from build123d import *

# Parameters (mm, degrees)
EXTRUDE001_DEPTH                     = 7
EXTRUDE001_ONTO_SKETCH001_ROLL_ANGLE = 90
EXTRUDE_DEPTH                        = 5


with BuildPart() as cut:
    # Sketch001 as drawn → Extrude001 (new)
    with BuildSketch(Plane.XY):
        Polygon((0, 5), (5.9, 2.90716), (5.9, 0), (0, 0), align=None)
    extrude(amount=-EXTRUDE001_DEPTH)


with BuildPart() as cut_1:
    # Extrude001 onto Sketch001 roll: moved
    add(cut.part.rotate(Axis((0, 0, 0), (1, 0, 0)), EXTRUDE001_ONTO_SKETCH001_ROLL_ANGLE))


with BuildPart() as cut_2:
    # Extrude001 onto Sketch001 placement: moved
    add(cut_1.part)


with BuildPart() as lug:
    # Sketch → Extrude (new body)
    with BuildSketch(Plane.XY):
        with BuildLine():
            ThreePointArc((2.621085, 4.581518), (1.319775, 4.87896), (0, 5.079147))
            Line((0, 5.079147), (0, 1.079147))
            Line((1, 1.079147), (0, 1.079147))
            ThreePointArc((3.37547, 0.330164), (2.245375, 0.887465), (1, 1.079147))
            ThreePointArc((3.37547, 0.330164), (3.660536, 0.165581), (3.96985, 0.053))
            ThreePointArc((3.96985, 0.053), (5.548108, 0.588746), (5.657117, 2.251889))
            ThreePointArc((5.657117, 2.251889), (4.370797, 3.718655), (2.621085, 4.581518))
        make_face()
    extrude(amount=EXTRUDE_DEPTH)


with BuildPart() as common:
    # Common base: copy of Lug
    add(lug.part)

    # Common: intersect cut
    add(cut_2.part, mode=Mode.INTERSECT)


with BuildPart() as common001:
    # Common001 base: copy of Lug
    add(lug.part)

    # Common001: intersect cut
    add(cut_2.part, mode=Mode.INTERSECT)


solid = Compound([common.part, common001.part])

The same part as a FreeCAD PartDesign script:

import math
import FreeCAD as App
import Part
import Sketcher
from FreeCAD import Vector
Q = App.Units.Quantity

doc = App.newDocument("Part")
body = doc.addObject("PartDesign::Body", "Body")

sketch1 = body.newObject("Sketcher::SketchObject", "Sketch")
sketch1.AttachmentSupport = (doc.getObject("XY_Plane"), [""])
sketch1.MapMode = "FlatFace"
sketch1.addGeometry(Part.LineSegment(Vector(5.9, 2.9, 0), Vector(0, 5, 0)), False)
sketch1.addGeometry(Part.LineSegment(Vector(0, 5, 0), Vector(0, 0, 0)), False)
sketch1.addGeometry(Part.LineSegment(Vector(0, 0, 0), Vector(5.9, 0, 0)), False)
sketch1.addGeometry(Part.LineSegment(Vector(5.9, 0, 0), Vector(5.9, 2.9, 0)), False)
sketch1.addConstraint(Sketcher.Constraint("Coincident", 0, 2, 1, 1))
sketch1.addConstraint(Sketcher.Constraint("Coincident", 1, 2, 2, 1))
sketch1.addConstraint(Sketcher.Constraint("Coincident", 2, 2, 3, 1))
sketch1.addConstraint(Sketcher.Constraint("Coincident", 3, 2, 0, 1))
sketch1.addConstraint(Sketcher.Constraint("Vertical", 1))
sketch1.addConstraint(Sketcher.Constraint("Horizontal", 2))
sketch1.addConstraint(Sketcher.Constraint("Vertical", 3))
sketch1.addConstraint(Sketcher.Constraint("Coincident", 1, 2, -1, 1))
sketch1.addConstraint(Sketcher.Constraint("DistanceY", 1, 2, 1, 1, Q("5 mm")))
sketch1.addConstraint(Sketcher.Constraint("DistanceX", 2, 1, 2, 2, Q("5.9 mm")))
sketch1.addConstraint(Sketcher.Constraint("DistanceY", 3, 1, 3, 2, Q("2.90716 mm")))
pad1 = body.newObject("PartDesign::Pad", "Pad")
pad1.Profile = sketch1
pad1.Length = 7
pad1.Reversed = True
body2 = doc.addObject("PartDesign::Body", "Body001")
doc.recompute()

body.Placement = App.Placement(Vector(0, 0, 0), App.Rotation(Vector(1, 0, 0), 90))
boolean = body2.newObject("PartDesign::Boolean", "Boolean")
boolean.Type = "Fuse"
boolean.addObjects([body])
body3 = doc.addObject("PartDesign::Body", "Body002")

sketch2 = body3.newObject("Sketcher::SketchObject", "Sketch001")
sketch2.AttachmentSupport = (doc.getObject("XY_Plane002"), [""])
sketch2.MapMode = "FlatFace"
sketch2.addGeometry(Part.ArcOfCircle(Part.Circle(Vector(-2, -12.8, 0), Vector(0, 0, 1), 18), math.radians(75), math.radians(83.5)), False)
sketch2.addGeometry(Part.LineSegment(Vector(0, 5.1, 0), Vector(0, 1.1, 0)), False)
sketch2.addGeometry(Part.LineSegment(Vector(0, 1.1, 0), Vector(1, 1.1, 0)), False)
sketch2.addGeometry(Part.ArcOfCircle(Part.Circle(Vector(1, -3.1, 0), Vector(0, 0, 1), 4.1), math.radians(55), math.radians(90)), False)
sketch2.addGeometry(Part.ArcOfCircle(Part.Circle(Vector(4.5, 1.9, 0), Vector(0, 0, 1), 1.9), math.radians(-125), math.radians(-105)), False)
sketch2.addGeometry(Part.ArcOfCircle(Part.Circle(Vector(4.4, 1.5, 0), Vector(0, 0, 1), 1.5), math.radians(-105), math.radians(30)), False)
sketch2.addGeometry(Part.ArcOfCircle(Part.Circle(Vector(1.3, -0.2, 0), Vector(0, 0, 1), 5), math.radians(30), math.radians(75)), False)
sketch2.addConstraint(Sketcher.Constraint("Coincident", 0, 2, 1, 1))
sketch2.addConstraint(Sketcher.Constraint("Coincident", 1, 2, 2, 1))
sketch2.addConstraint(Sketcher.Constraint("Tangent", 2, 2, 3, 2))
sketch2.addConstraint(Sketcher.Constraint("Tangent", 3, 1, 4, 1))
sketch2.addConstraint(Sketcher.Constraint("Tangent", 4, 2, 5, 1))
sketch2.addConstraint(Sketcher.Constraint("Tangent", 5, 2, 6, 1))
sketch2.addConstraint(Sketcher.Constraint("Tangent", 6, 2, 0, 1))
sketch2.addConstraint(Sketcher.Constraint("Vertical", 1))
sketch2.addConstraint(Sketcher.Constraint("Horizontal", 2))
sketch2.addConstraint(Sketcher.Constraint("PointOnObject", 0, 2, -2))
sketch2.addConstraint(Sketcher.Constraint("Radius", 5, Q("1.5 mm")))
sketch2.addConstraint(Sketcher.Constraint("DistanceX", 2, 1, 2, 2, Q("1 mm")))
sketch2.addConstraint(Sketcher.Constraint("DistanceY", 1, 2, 1, 1, Q("4 mm")))
sketch2.addConstraint(Sketcher.Constraint("Radius", 4, Q("1.88837 mm")))
sketch2.addConstraint(Sketcher.Constraint("DistanceY", 5, 3, 5, 2, Q("0.75 mm")))
sketch2.addConstraint(Sketcher.Constraint("DistanceY", -1, 1, 4, 2, Q("0.053 mm")))
sketch2.addConstraint(Sketcher.Constraint("Radius", 0, Q("18.000175 mm")))
sketch2.addConstraint(Sketcher.Constraint("Radius", 3, Q("4.141512 mm")))
sketch2.addConstraint(Sketcher.Constraint("Radius", 6, Q("5.000007 mm")))
sketch2.addConstraint(Sketcher.Constraint("DistanceY", 0, 3, 6, 3, Q("12.557202 mm")))
sketch2.addConstraint(Sketcher.Constraint("DistanceY", 0, 3, -1, 1, Q("12.805319 mm")))
pad2 = body3.newObject("PartDesign::Pad", "Pad001")
pad2.Profile = sketch2
pad2.Length = 5
body4 = doc.addObject("PartDesign::Body", "Body003")
doc.recompute()

body4.BaseFeature = body3
doc.recompute()

body5 = doc.addObject("PartDesign::Body", "Body004")
body5.BaseFeature = body2
boolean2 = body4.newObject("PartDesign::Boolean", "Boolean001")
boolean2.Type = "Common"
boolean2.addObjects([body5])
doc.recompute()

boolean3 = body3.newObject("PartDesign::Boolean", "Boolean002")
boolean3.Type = "Common"
boolean3.addObjects([body2])

doc.recompute()
